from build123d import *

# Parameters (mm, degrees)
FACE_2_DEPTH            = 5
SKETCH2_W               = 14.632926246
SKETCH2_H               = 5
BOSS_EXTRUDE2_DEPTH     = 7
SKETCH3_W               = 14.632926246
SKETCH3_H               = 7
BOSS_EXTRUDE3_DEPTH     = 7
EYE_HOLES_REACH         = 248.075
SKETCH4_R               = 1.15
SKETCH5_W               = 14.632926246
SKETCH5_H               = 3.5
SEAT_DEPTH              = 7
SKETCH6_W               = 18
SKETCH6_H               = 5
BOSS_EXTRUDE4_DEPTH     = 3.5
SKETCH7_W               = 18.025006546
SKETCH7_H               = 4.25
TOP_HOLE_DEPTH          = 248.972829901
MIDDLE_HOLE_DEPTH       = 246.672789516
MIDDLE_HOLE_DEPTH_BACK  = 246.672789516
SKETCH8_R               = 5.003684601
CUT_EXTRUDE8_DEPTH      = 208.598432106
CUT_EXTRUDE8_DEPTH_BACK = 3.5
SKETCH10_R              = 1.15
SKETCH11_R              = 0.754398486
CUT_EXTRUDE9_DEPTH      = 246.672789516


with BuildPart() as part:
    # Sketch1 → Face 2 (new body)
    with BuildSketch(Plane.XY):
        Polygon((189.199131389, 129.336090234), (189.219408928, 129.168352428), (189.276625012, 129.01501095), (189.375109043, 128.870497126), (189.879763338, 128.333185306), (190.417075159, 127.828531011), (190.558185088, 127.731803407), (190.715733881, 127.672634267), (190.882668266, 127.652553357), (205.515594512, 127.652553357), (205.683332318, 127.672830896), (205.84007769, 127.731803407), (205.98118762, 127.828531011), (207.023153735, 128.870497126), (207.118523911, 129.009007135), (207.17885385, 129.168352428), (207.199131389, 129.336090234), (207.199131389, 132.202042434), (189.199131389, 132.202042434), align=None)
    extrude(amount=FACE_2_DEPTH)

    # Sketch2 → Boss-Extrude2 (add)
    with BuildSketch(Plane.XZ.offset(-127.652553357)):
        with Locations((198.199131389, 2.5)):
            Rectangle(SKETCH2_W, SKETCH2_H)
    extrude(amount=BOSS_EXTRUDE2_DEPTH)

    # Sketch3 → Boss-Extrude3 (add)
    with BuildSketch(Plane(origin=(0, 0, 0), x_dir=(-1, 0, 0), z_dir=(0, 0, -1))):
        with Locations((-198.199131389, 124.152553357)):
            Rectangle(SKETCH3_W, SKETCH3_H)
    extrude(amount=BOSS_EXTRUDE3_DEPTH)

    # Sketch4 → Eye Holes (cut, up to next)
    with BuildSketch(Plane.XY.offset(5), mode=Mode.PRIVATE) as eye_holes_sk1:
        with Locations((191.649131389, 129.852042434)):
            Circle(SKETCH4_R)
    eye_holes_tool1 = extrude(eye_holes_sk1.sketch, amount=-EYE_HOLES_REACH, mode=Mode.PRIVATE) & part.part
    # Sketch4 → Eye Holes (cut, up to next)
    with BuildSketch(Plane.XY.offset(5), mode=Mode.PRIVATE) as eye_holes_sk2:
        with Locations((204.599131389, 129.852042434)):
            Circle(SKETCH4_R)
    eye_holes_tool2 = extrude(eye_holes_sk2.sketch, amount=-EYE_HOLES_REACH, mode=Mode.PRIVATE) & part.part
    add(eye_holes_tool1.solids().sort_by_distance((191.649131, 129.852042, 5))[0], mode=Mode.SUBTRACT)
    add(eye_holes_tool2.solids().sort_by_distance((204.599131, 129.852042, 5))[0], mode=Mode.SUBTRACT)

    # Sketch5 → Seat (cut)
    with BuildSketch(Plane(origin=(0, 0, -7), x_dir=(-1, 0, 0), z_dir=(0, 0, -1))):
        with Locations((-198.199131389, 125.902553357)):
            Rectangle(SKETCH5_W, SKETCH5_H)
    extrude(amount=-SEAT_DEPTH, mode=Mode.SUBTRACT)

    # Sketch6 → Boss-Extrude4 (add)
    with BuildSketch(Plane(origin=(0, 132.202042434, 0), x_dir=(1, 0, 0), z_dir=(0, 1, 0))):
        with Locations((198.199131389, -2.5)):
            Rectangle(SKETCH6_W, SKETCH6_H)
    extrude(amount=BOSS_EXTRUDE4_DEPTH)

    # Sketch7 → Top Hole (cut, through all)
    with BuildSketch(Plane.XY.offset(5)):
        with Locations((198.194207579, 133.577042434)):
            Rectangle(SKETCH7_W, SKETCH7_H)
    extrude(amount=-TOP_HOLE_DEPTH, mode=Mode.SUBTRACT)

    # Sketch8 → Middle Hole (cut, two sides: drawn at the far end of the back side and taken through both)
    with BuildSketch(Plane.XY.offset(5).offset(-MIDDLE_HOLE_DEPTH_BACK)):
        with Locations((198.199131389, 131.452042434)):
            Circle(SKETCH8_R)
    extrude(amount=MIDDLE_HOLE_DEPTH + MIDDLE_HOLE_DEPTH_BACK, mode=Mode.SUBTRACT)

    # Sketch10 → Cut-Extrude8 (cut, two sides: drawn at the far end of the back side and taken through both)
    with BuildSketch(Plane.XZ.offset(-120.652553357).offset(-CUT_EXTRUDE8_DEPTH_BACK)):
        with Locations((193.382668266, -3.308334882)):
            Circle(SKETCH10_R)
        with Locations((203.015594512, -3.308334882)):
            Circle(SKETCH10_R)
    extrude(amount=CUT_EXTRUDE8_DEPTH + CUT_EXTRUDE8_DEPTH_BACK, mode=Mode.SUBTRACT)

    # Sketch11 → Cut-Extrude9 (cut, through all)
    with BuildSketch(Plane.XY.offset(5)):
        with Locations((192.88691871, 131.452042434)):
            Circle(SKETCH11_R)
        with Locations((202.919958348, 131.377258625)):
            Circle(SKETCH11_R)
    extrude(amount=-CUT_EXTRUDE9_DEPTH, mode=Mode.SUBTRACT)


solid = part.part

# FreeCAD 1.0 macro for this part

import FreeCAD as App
import Part
import Sketcher

V = App.Vector
Q = App.Units.Quantity

doc = App.newDocument("Part")
params = doc.addObject("Spreadsheet::Sheet", "Params")
for row, (alias, value) in enumerate([
    ("sketch1_width", "18 mm"),
    ("pad1_length", "5 mm"),
    ("sketch2_height", "5 mm"),
    ("pad2_length", "7 mm"),
    ("sketch3_height", "7 mm"),
    ("pad3_length", "7 mm"),
    ("sketch4_diameter", "2.3 mm"),
    ("sketch5_diameter", "2.3 mm"),
    ("sketch6_height", "3.5 mm"),
    ("pocket3_length", "7 mm"),
    ("sketch7_width", "18 mm"),
    ("sketch7_height", "5 mm"),
    ("pad4_length", "3.5 mm"),
    ("sketch8_height", "4.25 mm"),
    ("sketch10_diameter", "2.3 mm"),
], start=1):
    params.set(f"A{row}", alias)
    params.set(f"B{row}", "=" + value)
    params.setAlias(f"B{row}", alias)

body = doc.addObject("PartDesign::Body", "Body")

sketch1 = body.newObject("Sketcher::SketchObject", "Sketch")
sketch1.AttachmentSupport = (doc.getObject("XY_Plane"), [""])
sketch1.MapMode = "FlatFace"
sketch1.addGeometry(Part.LineSegment(V(189.199131, 129.33609, 0), V(189.219409, 129.168352, 0)), False)
sketch1.addGeometry(Part.LineSegment(V(189.219409, 129.168352, 0), V(189.276625, 129.015011, 0)), False)
sketch1.addGeometry(Part.LineSegment(V(189.276625, 129.015011, 0), V(189.375109, 128.870497, 0)), False)
sketch1.addGeometry(Part.LineSegment(V(189.375109, 128.870497, 0), V(189.879763, 128.333185, 0)), False)
sketch1.addGeometry(Part.LineSegment(V(189.879763, 128.333185, 0), V(190.417075, 127.828531, 0)), False)
sketch1.addGeometry(Part.LineSegment(V(190.417075, 127.828531, 0), V(190.558185, 127.731803, 0)), False)
sketch1.addGeometry(Part.LineSegment(V(190.558185, 127.731803, 0), V(190.715734, 127.672634, 0)), False)
sketch1.addGeometry(Part.LineSegment(V(190.715734, 127.672634, 0), V(190.882668, 127.652553, 0)), False)
sketch1.addGeometry(Part.LineSegment(V(190.882668, 127.652553, 0), V(205.515595, 127.652553, 0)), False)
sketch1.addGeometry(Part.LineSegment(V(205.515595, 127.652553, 0), V(205.683332, 127.672831, 0)), False)
sketch1.addGeometry(Part.LineSegment(V(205.683332, 127.672831, 0), V(205.840078, 127.731803, 0)), False)
sketch1.addGeometry(Part.LineSegment(V(205.840078, 127.731803, 0), V(205.981188, 127.828531, 0)), False)
sketch1.addGeometry(Part.LineSegment(V(205.981188, 127.828531, 0), V(207.023154, 128.870497, 0)), False)
sketch1.addGeometry(Part.LineSegment(V(207.023154, 128.870497, 0), V(207.118524, 129.009007, 0)), False)
sketch1.addGeometry(Part.LineSegment(V(207.118524, 129.009007, 0), V(207.178854, 129.168352, 0)), False)
sketch1.addGeometry(Part.LineSegment(V(207.178854, 129.168352, 0), V(207.199131, 129.33609, 0)), False)
sketch1.addGeometry(Part.LineSegment(V(207.199131, 129.33609, 0), V(207.199131, 132.202042, 0)), False)
sketch1.addGeometry(Part.LineSegment(V(207.199131, 132.202042, 0), V(189.199131, 132.202042, 0)), False)
sketch1.addGeometry(Part.LineSegment(V(189.199131, 132.202042, 0), V(189.199131, 129.33609, 0)), False)
sketch1.addConstraint(Sketcher.Constraint("Coincident", 0, 2, 1, 1))
sketch1.addConstraint(Sketcher.Constraint("Coincident", 1, 2, 2, 1))
sketch1.addConstraint(Sketcher.Constraint("Coincident", 2, 2, 3, 1))
sketch1.addConstraint(Sketcher.Constraint("Coincident", 3, 2, 4, 1))
sketch1.addConstraint(Sketcher.Constraint("Coincident", 4, 2, 5, 1))
sketch1.addConstraint(Sketcher.Constraint("Coincident", 5, 2, 6, 1))
sketch1.addConstraint(Sketcher.Constraint("Coincident", 6, 2, 7, 1))
sketch1.addConstraint(Sketcher.Constraint("Coincident", 7, 2, 8, 1))
sketch1.addConstraint(Sketcher.Constraint("Coincident", 8, 2, 9, 1))
sketch1.addConstraint(Sketcher.Constraint("Coincident", 9, 2, 10, 1))
sketch1.addConstraint(Sketcher.Constraint("Coincident", 10, 2, 11, 1))
sketch1.addConstraint(Sketcher.Constraint("Coincident", 11, 2, 12, 1))
sketch1.addConstraint(Sketcher.Constraint("Coincident", 12, 2, 13, 1))
sketch1.addConstraint(Sketcher.Constraint("Coincident", 13, 2, 14, 1))
sketch1.addConstraint(Sketcher.Constraint("Coincident", 14, 2, 15, 1))
sketch1.addConstraint(Sketcher.Constraint("Coincident", 15, 2, 16, 1))
sketch1.addConstraint(Sketcher.Constraint("Coincident", 16, 2, 17, 1))
sketch1.addConstraint(Sketcher.Constraint("Coincident", 17, 2, 18, 1))
sketch1.addConstraint(Sketcher.Constraint("Coincident", 18, 2, 0, 1))
sketch1.addConstraint(Sketcher.Constraint("Horizontal", 8))
sketch1.addConstraint(Sketcher.Constraint("Vertical", 16))
sketch1.addConstraint(Sketcher.Constraint("Horizontal", 17))
sketch1.addConstraint(Sketcher.Constraint("Vertical", 18))
sketch1.addConstraint(Sketcher.Constraint("Perpendicular", 0, 9))
sketch1.addConstraint(Sketcher.Constraint("Horizontal", 5, 2, 10, 2))
sketch1.addConstraint(Sketcher.Constraint("Horizontal", 4, 2, 11, 2))
sketch1.addConstraint(Sketcher.Constraint("Horizontal", 2, 2, 12, 2))
sketch1.addConstraint(Sketcher.Constraint("Horizontal", 0, 2, 14, 2))
sketch1.addConstraint(Sketcher.Constraint("Horizontal", 15, 2, 18, 2))
sketch1.addConstraint(Sketcher.Constraint("Equal", 3, 4))
sketch1.addConstraint(Sketcher.Constraint("Equal", 0, 9))
sketch1.addConstraint(Sketcher.Constraint("Equal", 5, 11))
sketch1.addConstraint(Sketcher.Constraint("Equal", 9, 15))
sketch1.addConstraint(Sketcher.Constraint("DistanceX", 17, 2, 17, 1, 18.0))
sketch1.addConstraint(Sketcher.Constraint("Angle", 12, Q("45 deg")))
sketch1.addConstraint(Sketcher.Constraint("DistanceX", 0, 2, 2, 2, 0.1557))
sketch1.addConstraint(Sketcher.Constraint("DistanceX", 6, 2, 9, 2, 14.967598))
sketch1.addConstraint(Sketcher.Constraint("DistanceY", 9, 2, 4, 2, 0.1557))
sketch1.addConstraint(Sketcher.Constraint("DistanceX", 12, 2, 14, 2, 0.1557))
sketch1.addConstraint(Sketcher.Constraint("Distance", 0, 0.168959))
sketch1.addConstraint(Sketcher.Constraint("Distance", 1, 0.163668))
sketch1.addConstraint(Sketcher.Constraint("Distance", 2, 0.174881))
sketch1.addConstraint(Sketcher.Constraint("Distance", 5, 0.17108))
sketch1.addConstraint(Sketcher.Constraint("Distance", 10, 0.167472))
sketch1.addConstraint(Sketcher.Constraint("Distance", 13, 0.168168))
sketch1.addConstraint(Sketcher.Constraint("DistanceX", 8, 1, 8, 2, 14.632926))
sketch1.addConstraint(Sketcher.Constraint("DistanceY", 16, 1, 16, 2, 2.865952))
sketch1.addConstraint(Sketcher.Constraint("DistanceX", -1, 1, 0, 2, 189.219409))
sketch1.addConstraint(Sketcher.Constraint("DistanceY", -1, 1, 1, 2, 129.015011))
sketch1.addConstraint(Sketcher.Constraint("DistanceY", -1, 1, 4, 2, 127.828531))
sketch1.addConstraint(Sketcher.Constraint("DistanceX", -1, 1, 7, 2, 190.882668))
sketch1.addConstraint(Sketcher.Constraint("DistanceX", -1, 1, 15, 2, 207.199131))
sketch1.addConstraint(Sketcher.Constraint("DistanceY", -1, 1, 15, 2, 129.33609))
sketch1.addConstraint(Sketcher.Constraint("DistanceY", 3, 2, 2, 2, 0.537312))
sketch1.addConstraint(Sketcher.Constraint("DistanceX", 1, 2, 3, 2, 0.603138))
sketch1.addConstraint(Sketcher.Constraint("DistanceY", 6, 2, 5, 2, 0.059169))
sketch1.addConstraint(Sketcher.Constraint("DistanceX", 12, 2, 13, 2, 0.09537))
sketch1.setExpression("Constraints[33]", "Params.sketch1_width")
pad1 = body.newObject("PartDesign::Pad", "Pad")
pad1.Profile = sketch1
pad1.setExpression("Length", "Params.pad1_length")

sketch2 = body.newObject("Sketcher::SketchObject", "Sketch001")
sketch2.AttachmentSupport = (doc.getObject("XZ_Plane"), [""])
sketch2.MapMode = "FlatFace"
sketch2.AttachmentOffset = App.Placement(V(0, 0, -127.652553), App.Rotation())
sketch2.addGeometry(Part.LineSegment(V(190.882668, 5, 0), V(190.882668, 0, 0)), False)
sketch2.addGeometry(Part.LineSegment(V(190.882668, 0, 0), V(205.515595, 0, 0)), False)
sketch2.addGeometry(Part.LineSegment(V(205.515595, 0, 0), V(205.515595, 5, 0)), False)
sketch2.addGeometry(Part.LineSegment(V(205.515595, 5, 0), V(190.882668, 5, 0)), False)
sketch2.addConstraint(Sketcher.Constraint("Coincident", 0, 2, 1, 1))
sketch2.addConstraint(Sketcher.Constraint("Coincident", 1, 2, 2, 1))
sketch2.addConstraint(Sketcher.Constraint("Coincident", 2, 2, 3, 1))
sketch2.addConstraint(Sketcher.Constraint("Coincident", 3, 2, 0, 1))
sketch2.addConstraint(Sketcher.Constraint("Vertical", 0))
sketch2.addConstraint(Sketcher.Constraint("Horizontal", 1))
sketch2.addConstraint(Sketcher.Constraint("Vertical", 2))
sketch2.addConstraint(Sketcher.Constraint("Horizontal", 3))
sketch2.addConstraint(Sketcher.Constraint("PointOnObject", 0, 2, -1))
sketch2.addConstraint(Sketcher.Constraint("DistanceY", 0, 2, 0, 1, 5.0))
sketch2.addConstraint(Sketcher.Constraint("DistanceX", 1, 1, 1, 2, 14.632926))
sketch2.addConstraint(Sketcher.Constraint("DistanceX", -1, 1, 0, 2, 190.882668))
sketch2.setExpression("Constraints[9]", "Params.sketch2_height")
pad2 = body.newObject("PartDesign::Pad", "Pad001")
pad2.Profile = sketch2
pad2.setExpression("Length", "Params.pad2_length")

sketch3 = body.newObject("Sketcher::SketchObject", "Sketch002")
sketch3.AttachmentSupport = (doc.getObject("XY_Plane"), [""])
sketch3.MapMode = "FlatFace"
sketch3.addGeometry(Part.LineSegment(V(205.515595, 127.652553, 0), V(205.515595, 120.652553, 0)), False)
sketch3.addGeometry(Part.LineSegment(V(205.515595, 120.652553, 0), V(190.882668, 120.652553, 0)), False)
sketch3.addGeometry(Part.LineSegment(V(190.882668, 120.652553, 0), V(190.882668, 127.652553, 0)), False)
sketch3.addGeometry(Part.LineSegment(V(190.882668, 127.652553, 0), V(205.515595, 127.652553, 0)), False)
sketch3.addConstraint(Sketcher.Constraint("Coincident", 0, 2, 1, 1))
sketch3.addConstraint(Sketcher.Constraint("Coincident", 1, 2, 2, 1))
sketch3.addConstraint(Sketcher.Constraint("Coincident", 2, 2, 3, 1))
sketch3.addConstraint(Sketcher.Constraint("Coincident", 3, 2, 0, 1))
sketch3.addConstraint(Sketcher.Constraint("Vertical", 0))
sketch3.addConstraint(Sketcher.Constraint("Horizontal", 1))
sketch3.addConstraint(Sketcher.Constraint("Vertical", 2))
sketch3.addConstraint(Sketcher.Constraint("Horizontal", 3))
sketch3.addConstraint(Sketcher.Constraint("DistanceY", 0, 2, 0, 1, 7.0))
sketch3.addConstraint(Sketcher.Constraint("DistanceX", 1, 2, 1, 1, 14.632926))
sketch3.addConstraint(Sketcher.Constraint("DistanceX", -1, 1, 1, 2, 190.882668))
sketch3.addConstraint(Sketcher.Constraint("DistanceY", -1, 1, 0, 2, 120.652553))
sketch3.setExpression("Constraints[8]", "Params.sketch3_height")
pad3 = body.newObject("PartDesign::Pad", "Pad002")
pad3.Profile = sketch3
pad3.setExpression("Length", "Params.pad3_length")
pad3.Reversed = True

sketch4 = body.newObject("Sketcher::SketchObject", "Sketch003")
sketch4.AttachmentSupport = (doc.getObject("XY_Plane"), [""])
sketch4.MapMode = "FlatFace"
sketch4.AttachmentOffset = App.Placement(V(0, 0, 5), App.Rotation())
sketch4.addGeometry(Part.Circle(V(191.649131, 129.852042, 0), V(0, 0, 1), 1.15), False)
sketch4.addConstraint(Sketcher.Constraint("Diameter", 0, 2.3))
sketch4.addConstraint(Sketcher.Constraint("DistanceX", -1, 1, 0, 3, 191.649131))
sketch4.addConstraint(Sketcher.Constraint("DistanceY", -1, 1, 0, 3, 129.852042))
sketch4.setExpression("Constraints[0]", "Params.sketch4_diameter")
pocket1 = body.newObject("PartDesign::Pocket", "Pocket")
pocket1.Profile = sketch4
pocket1.Type = "UpToFirst"

sketch5 = body.newObject("Sketcher::SketchObject", "Sketch004")
sketch5.AttachmentSupport = (doc.getObject("XY_Plane"), [""])
sketch5.MapMode = "FlatFace"
sketch5.AttachmentOffset = App.Placement(V(0, 0, 5), App.Rotation())
sketch5.addGeometry(Part.Circle(V(204.599131, 129.852042, 0), V(0, 0, 1), 1.15), False)
sketch5.addConstraint(Sketcher.Constraint("Diameter", 0, 2.3))
sketch5.addConstraint(Sketcher.Constraint("DistanceX", -1, 1, 0, 3, 204.599131))
sketch5.addConstraint(Sketcher.Constraint("DistanceY", -1, 1, 0, 3, 129.852042))
sketch5.setExpression("Constraints[0]", "Params.sketch5_diameter")
pocket2 = body.newObject("PartDesign::Pocket", "Pocket001")
pocket2.Profile = sketch5
pocket2.Type = "UpToFirst"

sketch6 = body.newObject("Sketcher::SketchObject", "Sketch005")
sketch6.AttachmentSupport = (doc.getObject("XY_Plane"), [""])
sketch6.MapMode = "FlatFace"
sketch6.AttachmentOffset = App.Placement(V(0, 0, -7), App.Rotation())
sketch6.addGeometry(Part.LineSegment(V(205.515595, 127.652553, 0), V(205.515595, 124.152553, 0)), False)
sketch6.addGeometry(Part.LineSegment(V(205.515595, 124.152553, 0), V(190.882668, 124.152553, 0)), False)
sketch6.addGeometry(Part.LineSegment(V(190.882668, 124.152553, 0), V(190.882668, 127.652553, 0)), False)
sketch6.addGeometry(Part.LineSegment(V(190.882668, 127.652553, 0), V(205.515595, 127.652553, 0)), False)
sketch6.addConstraint(Sketcher.Constraint("Coincident", 0, 2, 1, 1))
sketch6.addConstraint(Sketcher.Constraint("Coincident", 1, 2, 2, 1))
sketch6.addConstraint(Sketcher.Constraint("Coincident", 2, 2, 3, 1))
sketch6.addConstraint(Sketcher.Constraint("Coincident", 3, 2, 0, 1))
sketch6.addConstraint(Sketcher.Constraint("Vertical", 0))
sketch6.addConstraint(Sketcher.Constraint("Horizontal", 1))
sketch6.addConstraint(Sketcher.Constraint("Vertical", 2))
sketch6.addConstraint(Sketcher.Constraint("Horizontal", 3))
sketch6.addConstraint(Sketcher.Constraint("DistanceY", 0, 2, 0, 1, 3.5))
sketch6.addConstraint(Sketcher.Constraint("DistanceX", 1, 2, 1, 1, 14.632926))
sketch6.addConstraint(Sketcher.Constraint("DistanceX", -1, 1, 1, 2, 190.882668))
sketch6.addConstraint(Sketcher.Constraint("DistanceY", -1, 1, 0, 2, 124.152553))
sketch6.setExpression("Constraints[8]", "Params.sketch6_height")
pocket3 = body.newObject("PartDesign::Pocket", "Pocket002")
pocket3.Profile = sketch6
pocket3.setExpression("Length", "Params.pocket3_length")
pocket3.Reversed = True

sketch7 = body.newObject("Sketcher::SketchObject", "Sketch006")
sketch7.AttachmentSupport = (doc.getObject("XZ_Plane"), [""])
sketch7.MapMode = "FlatFace"
sketch7.AttachmentOffset = App.Placement(V(0, 0, -132.202042), App.Rotation())
sketch7.addGeometry(Part.LineSegment(V(189.199131, 0, 0), V(189.199131, 5, 0)), False)
sketch7.addGeometry(Part.LineSegment(V(189.199131, 5, 0), V(207.199131, 5, 0)), False)
sketch7.addGeometry(Part.LineSegment(V(207.199131, 5, 0), V(207.199131, 0, 0)), False)
sketch7.addGeometry(Part.LineSegment(V(207.199131, 0, 0), V(189.199131, 0, 0)), False)
sketch7.addConstraint(Sketcher.Constraint("Coincident", 0, 2, 1, 1))
sketch7.addConstraint(Sketcher.Constraint("Coincident", 1, 2, 2, 1))
sketch7.addConstraint(Sketcher.Constraint("Coincident", 2, 2, 3, 1))
sketch7.addConstraint(Sketcher.Constraint("Coincident", 3, 2, 0, 1))
sketch7.addConstraint(Sketcher.Constraint("Vertical", 0))
sketch7.addConstraint(Sketcher.Constraint("Horizontal", 1))
sketch7.addConstraint(Sketcher.Constraint("Vertical", 2))
sketch7.addConstraint(Sketcher.Constraint("Horizontal", 3))
sketch7.addConstraint(Sketcher.Constraint("PointOnObject", 2, 2, -1))
sketch7.addConstraint(Sketcher.Constraint("DistanceX", 1, 1, 1, 2, 18.0))
sketch7.addConstraint(Sketcher.Constraint("DistanceY", 0, 1, 0, 2, 5.0))
sketch7.addConstraint(Sketcher.Constraint("DistanceX", -1, 1, 0, 2, 189.199131))
sketch7.setExpression("Constraints[9]", "Params.sketch7_width")
sketch7.setExpression("Constraints[10]", "Params.sketch7_height")
pad4 = body.newObject("PartDesign::Pad", "Pad003")
pad4.Profile = sketch7
pad4.setExpression("Length", "Params.pad4_length")
pad4.Reversed = True

sketch8 = body.newObject("Sketcher::SketchObject", "Sketch007")
sketch8.AttachmentSupport = (doc.getObject("XY_Plane"), [""])
sketch8.MapMode = "FlatFace"
sketch8.AttachmentOffset = App.Placement(V(0, 0, 5), App.Rotation())
sketch8.addGeometry(Part.LineSegment(V(189.181704, 135.702042, 0), V(189.181704, 131.452042, 0)), False)
sketch8.addGeometry(Part.LineSegment(V(189.181704, 131.452042, 0), V(207.206711, 131.452042, 0)), False)
sketch8.addGeometry(Part.LineSegment(V(207.206711, 131.452042, 0), V(207.206711, 135.702042, 0)), False)
sketch8.addGeometry(Part.LineSegment(V(207.206711, 135.702042, 0), V(189.181704, 135.702042, 0)), False)
sketch8.addConstraint(Sketcher.Constraint("Coincident", 0, 2, 1, 1))
sketch8.addConstraint(Sketcher.Constraint("Coincident", 1, 2, 2, 1))
sketch8.addConstraint(Sketcher.Constraint("Coincident", 2, 2, 3, 1))
sketch8.addConstraint(Sketcher.Constraint("Coincident", 3, 2, 0, 1))
sketch8.addConstraint(Sketcher.Constraint("Vertical", 0))
sketch8.addConstraint(Sketcher.Constraint("Horizontal", 1))
sketch8.addConstraint(Sketcher.Constraint("Vertical", 2))
sketch8.addConstraint(Sketcher.Constraint("Horizontal", 3))
sketch8.addConstraint(Sketcher.Constraint("DistanceY", 0, 2, 0, 1, 4.25))
sketch8.addConstraint(Sketcher.Constraint("DistanceX", 1, 1, 1, 2, 18.025007))
sketch8.addConstraint(Sketcher.Constraint("DistanceX", -1, 1, 1, 2, 207.206711))
sketch8.addConstraint(Sketcher.Constraint("DistanceY", -1, 1, 0, 2, 131.452042))
sketch8.setExpression("Constraints[8]", "Params.sketch8_height")
pocket4 = body.newObject("PartDesign::Pocket", "Pocket003")
pocket4.Profile = sketch8
pocket4.Type = "ThroughAll"

sketch9 = body.newObject("Sketcher::SketchObject", "Sketch008")
sketch9.AttachmentSupport = (doc.getObject("XY_Plane"), [""])
sketch9.MapMode = "FlatFace"
sketch9.AttachmentOffset = App.Placement(V(0, 0, 5), App.Rotation())
sketch9.addGeometry(Part.Circle(V(198.199131, 131.452042, 0), V(0, 0, 1), 5.003685), False)
sketch9.addConstraint(Sketcher.Constraint("Diameter", 0, 10.007369))
sketch9.addConstraint(Sketcher.Constraint("DistanceX", -1, 1, 0, 3, 198.199131))
sketch9.addConstraint(Sketcher.Constraint("DistanceY", -1, 1, 0, 3, 131.452042))
pocket5 = body.newObject("PartDesign::Pocket", "Pocket004")
pocket5.Profile = sketch9
pocket5.Type = "ThroughAll"
pocket5.Midplane = True

sketch10 = body.newObject("Sketcher::SketchObject", "Sketch009")
sketch10.AttachmentSupport = (doc.getObject("XZ_Plane"), [""])
sketch10.MapMode = "FlatFace"
sketch10.AttachmentOffset = App.Placement(V(0, 0, -120.652553), App.Rotation())
sketch10.addGeometry(Part.Circle(V(193.382668, -3.308335, 0), V(0, 0, 1), 1.15), False)
sketch10.addGeometry(Part.Circle(V(203.015595, -3.308335, 0), V(0, 0, 1), 1.15), False)
sketch10.addConstraint(Sketcher.Constraint("Equal", 0, 1))
sketch10.addConstraint(Sketcher.Constraint("Horizontal", 0, 3, 1, 3))
sketch10.addConstraint(Sketcher.Constraint("Diameter", 0, 2.3))
sketch10.addConstraint(Sketcher.Constraint("DistanceX", -1, 1, 0, 3, 193.382668))
sketch10.addConstraint(Sketcher.Constraint("DistanceY", 0, 3, -1, 1, 3.308335))
sketch10.addConstraint(Sketcher.Constraint("DistanceX", -1, 1, 1, 3, 203.015595))
sketch10.setExpression("Constraints[2]", "Params.sketch10_diameter")
pocket6 = body.newObject("PartDesign::Pocket", "Pocket005")
pocket6.Profile = sketch10
pocket6.Type = "ThroughAll"
pocket6.Midplane = True

sketch11 = body.newObject("Sketcher::SketchObject", "Sketch010")
sketch11.AttachmentSupport = (doc.getObject("XY_Plane"), [""])
sketch11.MapMode = "FlatFace"
sketch11.AttachmentOffset = App.Placement(V(0, 0, 5), App.Rotation())
sketch11.addGeometry(Part.Circle(V(192.886919, 131.452042, 0), V(0, 0, 1), 0.754398), False)
sketch11.addGeometry(Part.Circle(V(202.919958, 131.377259, 0), V(0, 0, 1), 0.754398), False)
sketch11.addConstraint(Sketcher.Constraint("Equal", 0, 1))
sketch11.addConstraint(Sketcher.Constraint("Diameter", 0, 1.508797))
sketch11.addConstraint(Sketcher.Constraint("DistanceX", -1, 1, 0, 3, 192.886919))
sketch11.addConstraint(Sketcher.Constraint("DistanceX", -1, 1, 1, 3, 202.919958))
sketch11.addConstraint(Sketcher.Constraint("DistanceY", -1, 1, 1, 3, 131.377259))
sketch11.addConstraint(Sketcher.Constraint("DistanceY", -1, 1, 0, 3, 131.452042))
pocket7 = body.newObject("PartDesign::Pocket", "Pocket006")
pocket7.Profile = sketch11
pocket7.Type = "ThroughAll"

doc.recompute()
